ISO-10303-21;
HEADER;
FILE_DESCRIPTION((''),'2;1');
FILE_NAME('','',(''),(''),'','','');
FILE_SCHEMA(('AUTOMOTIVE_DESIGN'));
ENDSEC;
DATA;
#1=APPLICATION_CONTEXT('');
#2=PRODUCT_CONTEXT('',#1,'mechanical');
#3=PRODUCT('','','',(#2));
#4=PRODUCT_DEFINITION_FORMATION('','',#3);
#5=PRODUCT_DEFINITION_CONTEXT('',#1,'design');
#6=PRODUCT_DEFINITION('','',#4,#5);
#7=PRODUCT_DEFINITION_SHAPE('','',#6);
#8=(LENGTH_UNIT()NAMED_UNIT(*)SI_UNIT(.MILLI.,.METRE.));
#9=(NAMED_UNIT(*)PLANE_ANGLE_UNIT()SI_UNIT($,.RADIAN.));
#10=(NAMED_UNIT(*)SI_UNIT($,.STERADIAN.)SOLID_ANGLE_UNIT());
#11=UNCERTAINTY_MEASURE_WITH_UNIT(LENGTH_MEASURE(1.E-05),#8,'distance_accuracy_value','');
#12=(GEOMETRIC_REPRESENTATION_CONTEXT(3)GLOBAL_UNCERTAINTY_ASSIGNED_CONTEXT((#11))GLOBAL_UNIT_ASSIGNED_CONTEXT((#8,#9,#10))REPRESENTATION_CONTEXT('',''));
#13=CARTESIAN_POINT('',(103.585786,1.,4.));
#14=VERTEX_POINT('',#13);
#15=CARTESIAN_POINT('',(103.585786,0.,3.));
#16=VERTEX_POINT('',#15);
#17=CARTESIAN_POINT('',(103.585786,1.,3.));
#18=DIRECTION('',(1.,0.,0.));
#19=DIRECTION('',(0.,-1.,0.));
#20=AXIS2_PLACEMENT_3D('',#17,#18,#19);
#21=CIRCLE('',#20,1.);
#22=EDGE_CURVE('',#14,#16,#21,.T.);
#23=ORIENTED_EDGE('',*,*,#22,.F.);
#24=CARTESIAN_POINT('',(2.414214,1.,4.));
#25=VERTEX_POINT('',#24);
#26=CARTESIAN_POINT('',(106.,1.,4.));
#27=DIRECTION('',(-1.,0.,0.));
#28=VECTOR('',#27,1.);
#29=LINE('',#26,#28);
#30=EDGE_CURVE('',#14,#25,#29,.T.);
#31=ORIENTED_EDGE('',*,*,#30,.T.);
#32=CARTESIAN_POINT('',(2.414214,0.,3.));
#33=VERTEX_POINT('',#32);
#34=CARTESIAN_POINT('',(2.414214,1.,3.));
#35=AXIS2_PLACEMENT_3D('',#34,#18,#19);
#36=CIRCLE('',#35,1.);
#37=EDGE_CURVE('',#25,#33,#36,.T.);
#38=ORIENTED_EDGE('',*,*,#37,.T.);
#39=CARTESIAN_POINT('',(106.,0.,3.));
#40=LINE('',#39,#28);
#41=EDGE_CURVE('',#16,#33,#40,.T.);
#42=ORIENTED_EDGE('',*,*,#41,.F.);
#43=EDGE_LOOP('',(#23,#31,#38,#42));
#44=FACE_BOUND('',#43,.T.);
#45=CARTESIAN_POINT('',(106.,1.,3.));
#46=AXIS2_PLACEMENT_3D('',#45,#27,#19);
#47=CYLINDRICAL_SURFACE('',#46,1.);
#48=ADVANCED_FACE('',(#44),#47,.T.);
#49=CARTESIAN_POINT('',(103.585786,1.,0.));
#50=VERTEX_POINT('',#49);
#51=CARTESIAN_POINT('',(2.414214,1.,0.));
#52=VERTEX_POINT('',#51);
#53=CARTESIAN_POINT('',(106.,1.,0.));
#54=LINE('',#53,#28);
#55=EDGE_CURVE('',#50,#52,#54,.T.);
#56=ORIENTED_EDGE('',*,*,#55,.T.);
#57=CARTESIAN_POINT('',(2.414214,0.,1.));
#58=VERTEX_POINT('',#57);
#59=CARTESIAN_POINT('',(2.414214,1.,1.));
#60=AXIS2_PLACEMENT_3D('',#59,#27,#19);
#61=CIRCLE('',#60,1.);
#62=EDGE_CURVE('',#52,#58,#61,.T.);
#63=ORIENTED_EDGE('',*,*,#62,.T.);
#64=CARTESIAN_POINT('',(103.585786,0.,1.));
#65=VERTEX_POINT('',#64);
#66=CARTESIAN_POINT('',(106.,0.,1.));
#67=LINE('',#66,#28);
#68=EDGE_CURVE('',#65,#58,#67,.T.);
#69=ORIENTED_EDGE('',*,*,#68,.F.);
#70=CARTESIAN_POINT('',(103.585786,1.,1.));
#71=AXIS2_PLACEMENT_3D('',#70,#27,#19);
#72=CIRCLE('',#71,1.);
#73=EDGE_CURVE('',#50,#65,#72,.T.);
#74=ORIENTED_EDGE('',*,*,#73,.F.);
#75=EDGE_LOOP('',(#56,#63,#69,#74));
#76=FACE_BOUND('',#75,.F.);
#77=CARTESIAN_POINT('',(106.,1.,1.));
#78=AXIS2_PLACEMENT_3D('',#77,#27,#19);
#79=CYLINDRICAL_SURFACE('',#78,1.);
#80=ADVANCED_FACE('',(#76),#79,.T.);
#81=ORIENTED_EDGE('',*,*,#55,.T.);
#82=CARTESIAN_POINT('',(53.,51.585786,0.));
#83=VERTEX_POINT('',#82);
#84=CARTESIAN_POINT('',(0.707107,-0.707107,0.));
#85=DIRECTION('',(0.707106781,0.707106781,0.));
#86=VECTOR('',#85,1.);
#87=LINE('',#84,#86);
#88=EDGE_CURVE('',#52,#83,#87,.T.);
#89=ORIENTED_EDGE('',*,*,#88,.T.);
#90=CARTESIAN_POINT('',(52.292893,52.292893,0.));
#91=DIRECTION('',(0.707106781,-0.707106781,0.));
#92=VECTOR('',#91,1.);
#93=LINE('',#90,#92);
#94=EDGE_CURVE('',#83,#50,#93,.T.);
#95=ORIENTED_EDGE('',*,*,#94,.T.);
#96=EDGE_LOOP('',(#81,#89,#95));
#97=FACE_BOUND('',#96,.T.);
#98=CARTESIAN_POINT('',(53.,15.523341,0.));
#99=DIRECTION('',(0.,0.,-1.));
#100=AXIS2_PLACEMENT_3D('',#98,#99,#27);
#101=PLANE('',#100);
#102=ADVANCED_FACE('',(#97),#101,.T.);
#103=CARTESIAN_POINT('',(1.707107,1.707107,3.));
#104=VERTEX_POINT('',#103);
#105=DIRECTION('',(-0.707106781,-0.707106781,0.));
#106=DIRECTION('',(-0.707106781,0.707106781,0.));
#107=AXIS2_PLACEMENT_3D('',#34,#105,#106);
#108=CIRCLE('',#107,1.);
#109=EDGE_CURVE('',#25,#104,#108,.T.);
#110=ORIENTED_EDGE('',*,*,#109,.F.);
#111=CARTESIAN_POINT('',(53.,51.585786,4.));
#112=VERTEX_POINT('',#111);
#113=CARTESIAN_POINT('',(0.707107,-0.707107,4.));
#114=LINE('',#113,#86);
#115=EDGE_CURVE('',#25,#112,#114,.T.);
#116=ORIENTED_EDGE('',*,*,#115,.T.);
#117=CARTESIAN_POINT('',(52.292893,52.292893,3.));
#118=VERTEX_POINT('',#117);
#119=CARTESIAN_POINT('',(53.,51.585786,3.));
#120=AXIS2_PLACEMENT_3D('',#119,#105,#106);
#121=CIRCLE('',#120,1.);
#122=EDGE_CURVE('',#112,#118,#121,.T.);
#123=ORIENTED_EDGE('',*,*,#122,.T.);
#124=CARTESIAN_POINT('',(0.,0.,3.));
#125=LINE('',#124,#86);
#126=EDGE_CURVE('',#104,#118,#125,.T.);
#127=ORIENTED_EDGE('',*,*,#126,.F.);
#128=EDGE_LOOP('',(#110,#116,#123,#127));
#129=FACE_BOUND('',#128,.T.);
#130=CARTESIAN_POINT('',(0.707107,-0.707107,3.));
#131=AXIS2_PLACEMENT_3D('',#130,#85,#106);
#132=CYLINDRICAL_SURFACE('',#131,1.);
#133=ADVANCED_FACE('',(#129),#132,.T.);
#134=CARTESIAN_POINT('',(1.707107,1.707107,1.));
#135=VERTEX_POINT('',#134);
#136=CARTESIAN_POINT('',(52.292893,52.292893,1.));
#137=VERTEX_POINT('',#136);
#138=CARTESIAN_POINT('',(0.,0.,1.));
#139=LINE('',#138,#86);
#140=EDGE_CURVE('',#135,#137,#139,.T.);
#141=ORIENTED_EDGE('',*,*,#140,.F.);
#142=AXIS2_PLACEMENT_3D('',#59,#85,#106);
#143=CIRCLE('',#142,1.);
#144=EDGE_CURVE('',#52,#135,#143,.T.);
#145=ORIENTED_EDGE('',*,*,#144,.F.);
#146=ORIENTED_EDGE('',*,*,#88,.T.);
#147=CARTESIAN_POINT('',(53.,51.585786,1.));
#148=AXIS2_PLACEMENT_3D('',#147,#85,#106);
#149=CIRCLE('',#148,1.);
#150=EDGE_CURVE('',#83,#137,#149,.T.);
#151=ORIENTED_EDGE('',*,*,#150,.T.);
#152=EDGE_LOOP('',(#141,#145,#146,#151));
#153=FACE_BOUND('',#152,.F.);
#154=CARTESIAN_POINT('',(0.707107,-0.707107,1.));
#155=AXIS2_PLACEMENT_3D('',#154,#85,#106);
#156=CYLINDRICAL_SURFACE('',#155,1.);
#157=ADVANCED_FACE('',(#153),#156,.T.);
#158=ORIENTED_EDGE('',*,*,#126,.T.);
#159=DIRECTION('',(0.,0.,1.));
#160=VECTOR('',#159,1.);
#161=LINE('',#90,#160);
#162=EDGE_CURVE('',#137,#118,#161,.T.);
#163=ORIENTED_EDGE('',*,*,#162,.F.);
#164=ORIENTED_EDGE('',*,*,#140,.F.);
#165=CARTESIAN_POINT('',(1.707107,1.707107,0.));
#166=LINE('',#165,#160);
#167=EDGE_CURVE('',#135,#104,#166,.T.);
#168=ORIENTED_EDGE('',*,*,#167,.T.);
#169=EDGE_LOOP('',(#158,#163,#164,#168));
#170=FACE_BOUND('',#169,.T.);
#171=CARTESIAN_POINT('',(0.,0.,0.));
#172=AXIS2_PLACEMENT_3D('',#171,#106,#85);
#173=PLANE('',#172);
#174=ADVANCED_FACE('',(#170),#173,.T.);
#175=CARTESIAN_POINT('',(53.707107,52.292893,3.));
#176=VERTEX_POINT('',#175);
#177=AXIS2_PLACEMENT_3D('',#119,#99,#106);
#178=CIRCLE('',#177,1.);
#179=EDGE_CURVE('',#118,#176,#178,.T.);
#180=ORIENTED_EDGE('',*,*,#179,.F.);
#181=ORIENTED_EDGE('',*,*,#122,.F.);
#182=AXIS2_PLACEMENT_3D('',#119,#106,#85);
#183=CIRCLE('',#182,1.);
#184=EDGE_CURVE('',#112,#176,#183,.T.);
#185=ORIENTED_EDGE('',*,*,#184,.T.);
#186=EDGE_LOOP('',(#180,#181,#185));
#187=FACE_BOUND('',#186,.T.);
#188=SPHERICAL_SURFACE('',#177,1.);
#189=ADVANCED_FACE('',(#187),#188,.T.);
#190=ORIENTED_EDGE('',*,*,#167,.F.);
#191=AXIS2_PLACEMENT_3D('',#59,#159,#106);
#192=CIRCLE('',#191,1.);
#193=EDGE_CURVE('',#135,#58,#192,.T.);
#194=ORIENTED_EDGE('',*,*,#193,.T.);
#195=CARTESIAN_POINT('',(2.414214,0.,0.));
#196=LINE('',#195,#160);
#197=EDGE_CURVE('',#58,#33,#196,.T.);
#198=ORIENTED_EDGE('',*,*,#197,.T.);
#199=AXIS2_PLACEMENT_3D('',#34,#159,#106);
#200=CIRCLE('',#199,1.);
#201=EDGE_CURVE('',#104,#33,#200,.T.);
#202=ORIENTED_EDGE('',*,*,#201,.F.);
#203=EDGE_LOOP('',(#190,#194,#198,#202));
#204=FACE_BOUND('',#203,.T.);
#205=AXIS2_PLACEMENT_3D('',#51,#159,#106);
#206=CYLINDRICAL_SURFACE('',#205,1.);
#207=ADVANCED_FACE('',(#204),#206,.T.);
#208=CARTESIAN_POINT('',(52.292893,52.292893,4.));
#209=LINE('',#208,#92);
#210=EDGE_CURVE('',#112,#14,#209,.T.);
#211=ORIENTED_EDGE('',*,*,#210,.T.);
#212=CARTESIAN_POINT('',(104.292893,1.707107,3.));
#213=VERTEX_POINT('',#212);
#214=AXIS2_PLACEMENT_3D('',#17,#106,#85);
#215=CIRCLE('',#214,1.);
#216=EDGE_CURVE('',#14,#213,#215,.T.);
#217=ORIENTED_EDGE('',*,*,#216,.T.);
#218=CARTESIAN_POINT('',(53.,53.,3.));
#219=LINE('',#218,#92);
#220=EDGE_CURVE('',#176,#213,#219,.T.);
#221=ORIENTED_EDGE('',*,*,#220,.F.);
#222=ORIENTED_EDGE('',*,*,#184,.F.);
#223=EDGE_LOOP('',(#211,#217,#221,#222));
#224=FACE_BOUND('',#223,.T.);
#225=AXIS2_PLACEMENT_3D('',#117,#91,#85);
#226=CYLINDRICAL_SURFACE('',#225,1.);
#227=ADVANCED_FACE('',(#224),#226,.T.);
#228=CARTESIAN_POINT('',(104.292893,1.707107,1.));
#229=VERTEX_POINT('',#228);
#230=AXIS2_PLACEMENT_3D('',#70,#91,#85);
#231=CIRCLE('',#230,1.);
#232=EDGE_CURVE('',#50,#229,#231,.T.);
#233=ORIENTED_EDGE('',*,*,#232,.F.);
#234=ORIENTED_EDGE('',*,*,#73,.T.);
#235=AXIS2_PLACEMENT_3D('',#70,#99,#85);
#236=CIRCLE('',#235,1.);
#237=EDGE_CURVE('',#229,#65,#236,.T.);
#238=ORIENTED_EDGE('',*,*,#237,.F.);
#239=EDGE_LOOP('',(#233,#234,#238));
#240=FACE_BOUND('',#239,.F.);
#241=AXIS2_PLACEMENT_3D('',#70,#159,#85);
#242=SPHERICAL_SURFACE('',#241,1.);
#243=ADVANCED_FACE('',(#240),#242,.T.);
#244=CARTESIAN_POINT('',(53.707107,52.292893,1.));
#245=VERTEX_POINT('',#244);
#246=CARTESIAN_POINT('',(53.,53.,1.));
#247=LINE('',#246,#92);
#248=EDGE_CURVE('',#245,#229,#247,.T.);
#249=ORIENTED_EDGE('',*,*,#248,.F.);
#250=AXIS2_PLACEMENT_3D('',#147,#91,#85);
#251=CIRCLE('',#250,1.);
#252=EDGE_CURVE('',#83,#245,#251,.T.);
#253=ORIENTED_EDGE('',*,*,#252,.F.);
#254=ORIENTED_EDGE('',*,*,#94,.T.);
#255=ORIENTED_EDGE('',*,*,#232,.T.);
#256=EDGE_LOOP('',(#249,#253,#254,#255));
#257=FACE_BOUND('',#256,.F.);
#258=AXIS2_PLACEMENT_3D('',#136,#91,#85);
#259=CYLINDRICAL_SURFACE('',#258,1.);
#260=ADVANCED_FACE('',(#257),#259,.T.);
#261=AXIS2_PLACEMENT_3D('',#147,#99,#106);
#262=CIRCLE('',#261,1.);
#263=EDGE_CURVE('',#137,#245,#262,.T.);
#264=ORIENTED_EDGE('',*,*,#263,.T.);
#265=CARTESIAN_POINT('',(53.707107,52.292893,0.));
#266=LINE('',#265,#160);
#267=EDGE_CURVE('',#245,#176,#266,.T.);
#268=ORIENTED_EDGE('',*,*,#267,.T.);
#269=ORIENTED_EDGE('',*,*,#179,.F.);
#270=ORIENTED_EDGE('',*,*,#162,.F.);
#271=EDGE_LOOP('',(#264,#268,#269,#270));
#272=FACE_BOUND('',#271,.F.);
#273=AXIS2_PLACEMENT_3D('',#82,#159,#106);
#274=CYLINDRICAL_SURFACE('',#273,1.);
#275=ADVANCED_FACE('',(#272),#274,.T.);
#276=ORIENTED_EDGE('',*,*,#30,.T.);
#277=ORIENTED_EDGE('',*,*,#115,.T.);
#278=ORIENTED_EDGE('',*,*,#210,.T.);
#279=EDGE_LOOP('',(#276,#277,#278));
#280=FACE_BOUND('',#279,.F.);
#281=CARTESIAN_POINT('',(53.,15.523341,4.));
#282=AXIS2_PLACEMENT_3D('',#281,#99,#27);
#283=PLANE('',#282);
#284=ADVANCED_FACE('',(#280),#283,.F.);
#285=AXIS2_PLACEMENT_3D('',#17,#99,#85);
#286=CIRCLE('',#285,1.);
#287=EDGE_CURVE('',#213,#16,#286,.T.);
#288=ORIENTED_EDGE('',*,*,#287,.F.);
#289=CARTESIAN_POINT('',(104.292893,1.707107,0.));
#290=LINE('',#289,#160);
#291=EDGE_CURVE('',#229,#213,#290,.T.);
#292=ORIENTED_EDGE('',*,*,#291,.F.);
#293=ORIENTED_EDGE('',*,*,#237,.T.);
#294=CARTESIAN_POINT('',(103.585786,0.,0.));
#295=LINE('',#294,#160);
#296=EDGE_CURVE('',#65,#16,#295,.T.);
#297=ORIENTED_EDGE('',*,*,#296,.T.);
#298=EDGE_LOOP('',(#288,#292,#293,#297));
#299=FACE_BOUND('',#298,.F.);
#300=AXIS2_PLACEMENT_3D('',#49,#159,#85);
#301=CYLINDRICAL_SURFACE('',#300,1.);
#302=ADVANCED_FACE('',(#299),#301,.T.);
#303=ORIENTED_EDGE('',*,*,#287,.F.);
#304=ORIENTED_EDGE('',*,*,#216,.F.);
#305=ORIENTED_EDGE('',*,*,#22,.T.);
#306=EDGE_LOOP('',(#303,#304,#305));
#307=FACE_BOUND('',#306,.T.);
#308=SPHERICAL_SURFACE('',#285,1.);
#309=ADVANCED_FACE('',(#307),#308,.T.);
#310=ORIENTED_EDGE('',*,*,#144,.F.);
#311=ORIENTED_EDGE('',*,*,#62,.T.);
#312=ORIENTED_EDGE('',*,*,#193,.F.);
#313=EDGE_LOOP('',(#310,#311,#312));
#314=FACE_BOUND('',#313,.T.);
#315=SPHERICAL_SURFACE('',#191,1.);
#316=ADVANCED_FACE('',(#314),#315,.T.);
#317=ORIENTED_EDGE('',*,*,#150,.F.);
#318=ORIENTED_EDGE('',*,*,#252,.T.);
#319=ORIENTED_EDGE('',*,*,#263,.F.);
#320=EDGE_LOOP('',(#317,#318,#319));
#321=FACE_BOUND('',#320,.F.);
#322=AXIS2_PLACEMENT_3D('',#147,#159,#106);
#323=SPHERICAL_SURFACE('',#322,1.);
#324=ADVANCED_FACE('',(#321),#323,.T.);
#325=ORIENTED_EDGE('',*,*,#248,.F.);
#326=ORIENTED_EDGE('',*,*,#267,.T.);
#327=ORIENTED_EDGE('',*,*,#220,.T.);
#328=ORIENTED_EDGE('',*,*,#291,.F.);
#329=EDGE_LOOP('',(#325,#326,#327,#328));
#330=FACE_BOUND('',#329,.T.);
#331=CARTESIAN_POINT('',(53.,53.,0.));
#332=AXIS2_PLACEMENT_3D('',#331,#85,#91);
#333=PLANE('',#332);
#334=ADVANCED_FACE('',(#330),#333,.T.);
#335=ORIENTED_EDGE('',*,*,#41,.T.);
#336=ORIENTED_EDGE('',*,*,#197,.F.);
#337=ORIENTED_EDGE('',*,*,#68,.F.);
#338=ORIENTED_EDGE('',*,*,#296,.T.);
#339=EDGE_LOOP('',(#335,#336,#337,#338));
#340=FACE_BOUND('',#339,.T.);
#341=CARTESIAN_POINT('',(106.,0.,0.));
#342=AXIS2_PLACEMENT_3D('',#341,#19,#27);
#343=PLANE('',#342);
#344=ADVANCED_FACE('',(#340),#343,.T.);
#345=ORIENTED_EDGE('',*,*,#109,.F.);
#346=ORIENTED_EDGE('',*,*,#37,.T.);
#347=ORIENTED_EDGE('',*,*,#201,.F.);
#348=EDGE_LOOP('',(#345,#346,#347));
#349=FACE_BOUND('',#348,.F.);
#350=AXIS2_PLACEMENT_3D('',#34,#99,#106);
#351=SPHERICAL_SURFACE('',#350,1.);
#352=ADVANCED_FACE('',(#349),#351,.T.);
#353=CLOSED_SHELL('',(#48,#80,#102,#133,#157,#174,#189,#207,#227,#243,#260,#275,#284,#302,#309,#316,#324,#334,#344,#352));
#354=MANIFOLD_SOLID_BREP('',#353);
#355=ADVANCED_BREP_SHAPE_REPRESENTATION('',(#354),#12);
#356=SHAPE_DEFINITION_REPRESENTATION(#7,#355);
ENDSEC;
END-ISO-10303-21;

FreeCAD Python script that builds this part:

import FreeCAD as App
import Part
import Sketcher

V = App.Vector
Q = App.Units.Quantity


def add_polygon(sketch, points):
    """Adds a closed chain of lines whose ends are joined by coincident constraints."""
    first, n = sketch.GeometryCount, len(points)
    for a, b in zip(points, points[1:] + points[:1]):
        sketch.addGeometry(Part.LineSegment(App.Vector(*a, 0), App.Vector(*b, 0)), False)
    for i in range(n):
        sketch.addConstraint(Sketcher.Constraint("Coincident", first + i, 2, first + (i + 1) % n, 1))

doc = App.newDocument("Part")
body = doc.addObject("PartDesign::Body", "Body")

# Sketch on XY plane
sketch1 = body.newObject("Sketcher::SketchObject", "Sketch")
sketch1.AttachmentSupport = (doc.getObject("XY_Plane"), [""])
sketch1.MapMode = "FlatFace"
add_polygon(sketch1, [(53, 53), (0, 0), (106, 0)])  # lines 0-2
sketch1.addConstraint(Sketcher.Constraint("Horizontal", 1))
sketch1.addConstraint(Sketcher.Constraint("Coincident", 0, 2, -1, 1))
sketch1.addConstraint(Sketcher.Constraint("Perpendicular", 0, 2))
sketch1.addConstraint(Sketcher.Constraint("Equal", 0, 2))
sketch1.addConstraint(Sketcher.Constraint("DistanceX", 1, 1, 1, 2, Q("106 mm")))
pad1 = body.newObject("PartDesign::Pad", "Pad")
pad1.Profile = sketch1
pad1.Length = 4
doc.recompute()

fillet = body.newObject("PartDesign::Fillet", "Fillet")
fillet.Base = (pad1, ["Edge1"])
fillet.UseAllEdges = True
fillet.Radius = 1

doc.recompute()
